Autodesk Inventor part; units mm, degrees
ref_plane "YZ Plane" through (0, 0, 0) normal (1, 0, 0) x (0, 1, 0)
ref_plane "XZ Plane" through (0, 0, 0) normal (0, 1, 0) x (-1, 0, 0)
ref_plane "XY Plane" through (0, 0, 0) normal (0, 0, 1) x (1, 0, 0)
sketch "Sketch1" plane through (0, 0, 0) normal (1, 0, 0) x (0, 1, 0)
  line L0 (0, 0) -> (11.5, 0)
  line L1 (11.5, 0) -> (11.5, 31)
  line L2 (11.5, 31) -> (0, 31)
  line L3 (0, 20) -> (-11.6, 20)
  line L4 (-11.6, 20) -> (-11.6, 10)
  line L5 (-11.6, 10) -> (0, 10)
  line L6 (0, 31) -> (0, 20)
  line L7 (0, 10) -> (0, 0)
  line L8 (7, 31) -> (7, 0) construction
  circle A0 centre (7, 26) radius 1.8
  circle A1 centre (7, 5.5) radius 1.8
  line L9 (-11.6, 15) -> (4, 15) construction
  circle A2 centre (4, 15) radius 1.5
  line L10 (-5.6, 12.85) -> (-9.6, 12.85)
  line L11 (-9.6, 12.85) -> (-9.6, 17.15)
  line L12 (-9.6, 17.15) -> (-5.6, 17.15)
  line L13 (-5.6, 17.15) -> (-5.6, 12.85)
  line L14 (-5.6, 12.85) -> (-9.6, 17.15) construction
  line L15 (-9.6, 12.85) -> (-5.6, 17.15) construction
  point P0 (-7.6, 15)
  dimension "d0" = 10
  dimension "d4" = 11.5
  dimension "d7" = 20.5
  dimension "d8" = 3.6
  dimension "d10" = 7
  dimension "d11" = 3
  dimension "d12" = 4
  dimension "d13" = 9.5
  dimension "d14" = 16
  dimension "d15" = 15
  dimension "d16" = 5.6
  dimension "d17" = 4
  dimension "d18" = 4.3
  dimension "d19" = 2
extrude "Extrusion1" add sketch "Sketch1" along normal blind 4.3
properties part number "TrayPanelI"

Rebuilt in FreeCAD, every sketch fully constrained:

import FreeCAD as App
import Part
import Sketcher
from FreeCAD import Vector
Q = App.Units.Quantity

doc = App.newDocument("Part")
params = doc.addObject("Spreadsheet::Sheet", "Params")
for row, (alias, value) in enumerate([
    ("sketch1_diameter", "3 mm"),
    ("sketch1_diameter2", "3.6 mm"),
    ("sketch1_width", "4 mm"),
    ("sketch1_height", "10 mm"),
    ("sketch1_width2", "11.5 mm"),
    ("pad1_length", "4.3 mm"),
], start=1):
    params.set(f"A{row}", alias)
    params.set(f"B{row}", "=" + value)
    params.setAlias(f"B{row}", alias)

body = doc.addObject("PartDesign::Body", "Body")

sketch1 = body.newObject("Sketcher::SketchObject", "Sketch")
sketch1.AttachmentSupport = (doc.getObject("YZ_Plane"), [""])
sketch1.MapMode = "FlatFace"
sketch1.addGeometry([
    Part.LineSegment(Vector(0, 10, 0), Vector(0, 0, 0)),
    Part.LineSegment(Vector(0, 0, 0), Vector(11.5, 0, 0)),
    Part.LineSegment(Vector(11.5, 0, 0), Vector(11.5, 31, 0)),
    Part.LineSegment(Vector(11.5, 31, 0), Vector(0, 31, 0)),
    Part.LineSegment(Vector(0, 31, 0), Vector(0, 20, 0)),
    Part.LineSegment(Vector(0, 20, 0), Vector(-11.6, 20, 0)),
    Part.LineSegment(Vector(-11.6, 20, 0), Vector(-11.6, 10, 0)),
    Part.LineSegment(Vector(-11.6, 10, 0), Vector(0, 10, 0)),
    Part.LineSegment(Vector(-5.6, 17.1, 0), Vector(-5.6, 12.8, 0)),
    Part.LineSegment(Vector(-5.6, 12.8, 0), Vector(-9.6, 12.8, 0)),
    Part.LineSegment(Vector(-9.6, 12.8, 0), Vector(-9.6, 17.1, 0)),
    Part.LineSegment(Vector(-9.6, 17.1, 0), Vector(-5.6, 17.1, 0)),
    Part.Circle(Vector(7, 5.5, 0), Vector(0, 0, 1), 1.8),
    Part.Circle(Vector(4, 15, 0), Vector(0, 0, 1), 1.5),
    Part.Circle(Vector(7, 26, 0), Vector(0, 0, 1), 1.8),
], False)
sketch1.addConstraint([
    Sketcher.Constraint("Coincident", 0, 2, 1, 1),
    Sketcher.Constraint("Coincident", 1, 2, 2, 1),
    Sketcher.Constraint("Coincident", 2, 2, 3, 1),
    Sketcher.Constraint("Coincident", 3, 2, 4, 1),
    Sketcher.Constraint("Coincident", 4, 2, 5, 1),
    Sketcher.Constraint("Coincident", 5, 2, 6, 1),
    Sketcher.Constraint("Coincident", 6, 2, 7, 1),
    Sketcher.Constraint("Coincident", 7, 2, 0, 1),
    Sketcher.Constraint("Coincident", 8, 2, 9, 1),
    Sketcher.Constraint("Coincident", 9, 2, 10, 1),
    Sketcher.Constraint("Coincident", 10, 2, 11, 1),
    Sketcher.Constraint("Coincident", 11, 2, 8, 1),
    Sketcher.Constraint("Vertical", 0),
    Sketcher.Constraint("Horizontal", 1),
    Sketcher.Constraint("Vertical", 2),
    Sketcher.Constraint("Horizontal", 3),
    Sketcher.Constraint("Vertical", 4),
    Sketcher.Constraint("Horizontal", 5),
    Sketcher.Constraint("Vertical", 6),
    Sketcher.Constraint("Horizontal", 7),
    Sketcher.Constraint("Vertical", 8),
    Sketcher.Constraint("Horizontal", 9),
    Sketcher.Constraint("Vertical", 10),
    Sketcher.Constraint("Horizontal", 11),
    Sketcher.Constraint("Coincident", 0, 2, -1, 1),
    Sketcher.Constraint("Equal", 12, 14),
    Sketcher.Constraint("PointOnObject", 3, 2, -2),
    Sketcher.Constraint("Vertical", 12, 3, 14, 3),
    Sketcher.Constraint("Equal", 0, 6),
    Sketcher.Constraint("Diameter", 13, Q("3 mm")),
    Sketcher.Constraint("Diameter", 12, Q("3.6 mm")),
    Sketcher.Constraint("DistanceX", 9, 2, 9, 1, Q("4 mm")),
    Sketcher.Constraint("DistanceY", 0, 2, 0, 1, Q("10 mm")),
    Sketcher.Constraint("DistanceX", 1, 1, 1, 2, Q("11.5 mm")),
    Sketcher.Constraint("DistanceY", 8, 2, 8, 1, Q("4.3 mm")),
    Sketcher.Constraint("DistanceX", -1, 1, 12, 3, Q("7 mm")),
    Sketcher.Constraint("DistanceX", -1, 1, 13, 3, Q("4 mm")),
    Sketcher.Constraint("DistanceY", -1, 1, 13, 3, Q("15 mm")),
    Sketcher.Constraint("DistanceY", 13, 3, 2, 2, Q("16 mm")),
    Sketcher.Constraint("DistanceX", 6, 2, 9, 2, Q("2 mm")),
    Sketcher.Constraint("DistanceX", 8, 2, -1, 1, Q("5.6 mm")),
    Sketcher.Constraint("DistanceY", 12, 3, 13, 3, Q("9.5 mm")),
    Sketcher.Constraint("DistanceY", 12, 3, 14, 3, Q("20.5 mm")),
    Sketcher.Constraint("DistanceY", -1, 1, 8, 2, Q("12.85 mm")),
])
sketch1.setExpression("Constraints[29]", "Params.sketch1_diameter")
sketch1.setExpression("Constraints[30]", "Params.sketch1_diameter2")
sketch1.setExpression("Constraints[31]", "Params.sketch1_width")
sketch1.setExpression("Constraints[32]", "Params.sketch1_height")
sketch1.setExpression("Constraints[33]", "Params.sketch1_width2")
pad1 = body.newObject("PartDesign::Pad", "Pad")
pad1.Profile = sketch1
pad1.setExpression("Length", "Params.pad1_length")

doc.recompute()
